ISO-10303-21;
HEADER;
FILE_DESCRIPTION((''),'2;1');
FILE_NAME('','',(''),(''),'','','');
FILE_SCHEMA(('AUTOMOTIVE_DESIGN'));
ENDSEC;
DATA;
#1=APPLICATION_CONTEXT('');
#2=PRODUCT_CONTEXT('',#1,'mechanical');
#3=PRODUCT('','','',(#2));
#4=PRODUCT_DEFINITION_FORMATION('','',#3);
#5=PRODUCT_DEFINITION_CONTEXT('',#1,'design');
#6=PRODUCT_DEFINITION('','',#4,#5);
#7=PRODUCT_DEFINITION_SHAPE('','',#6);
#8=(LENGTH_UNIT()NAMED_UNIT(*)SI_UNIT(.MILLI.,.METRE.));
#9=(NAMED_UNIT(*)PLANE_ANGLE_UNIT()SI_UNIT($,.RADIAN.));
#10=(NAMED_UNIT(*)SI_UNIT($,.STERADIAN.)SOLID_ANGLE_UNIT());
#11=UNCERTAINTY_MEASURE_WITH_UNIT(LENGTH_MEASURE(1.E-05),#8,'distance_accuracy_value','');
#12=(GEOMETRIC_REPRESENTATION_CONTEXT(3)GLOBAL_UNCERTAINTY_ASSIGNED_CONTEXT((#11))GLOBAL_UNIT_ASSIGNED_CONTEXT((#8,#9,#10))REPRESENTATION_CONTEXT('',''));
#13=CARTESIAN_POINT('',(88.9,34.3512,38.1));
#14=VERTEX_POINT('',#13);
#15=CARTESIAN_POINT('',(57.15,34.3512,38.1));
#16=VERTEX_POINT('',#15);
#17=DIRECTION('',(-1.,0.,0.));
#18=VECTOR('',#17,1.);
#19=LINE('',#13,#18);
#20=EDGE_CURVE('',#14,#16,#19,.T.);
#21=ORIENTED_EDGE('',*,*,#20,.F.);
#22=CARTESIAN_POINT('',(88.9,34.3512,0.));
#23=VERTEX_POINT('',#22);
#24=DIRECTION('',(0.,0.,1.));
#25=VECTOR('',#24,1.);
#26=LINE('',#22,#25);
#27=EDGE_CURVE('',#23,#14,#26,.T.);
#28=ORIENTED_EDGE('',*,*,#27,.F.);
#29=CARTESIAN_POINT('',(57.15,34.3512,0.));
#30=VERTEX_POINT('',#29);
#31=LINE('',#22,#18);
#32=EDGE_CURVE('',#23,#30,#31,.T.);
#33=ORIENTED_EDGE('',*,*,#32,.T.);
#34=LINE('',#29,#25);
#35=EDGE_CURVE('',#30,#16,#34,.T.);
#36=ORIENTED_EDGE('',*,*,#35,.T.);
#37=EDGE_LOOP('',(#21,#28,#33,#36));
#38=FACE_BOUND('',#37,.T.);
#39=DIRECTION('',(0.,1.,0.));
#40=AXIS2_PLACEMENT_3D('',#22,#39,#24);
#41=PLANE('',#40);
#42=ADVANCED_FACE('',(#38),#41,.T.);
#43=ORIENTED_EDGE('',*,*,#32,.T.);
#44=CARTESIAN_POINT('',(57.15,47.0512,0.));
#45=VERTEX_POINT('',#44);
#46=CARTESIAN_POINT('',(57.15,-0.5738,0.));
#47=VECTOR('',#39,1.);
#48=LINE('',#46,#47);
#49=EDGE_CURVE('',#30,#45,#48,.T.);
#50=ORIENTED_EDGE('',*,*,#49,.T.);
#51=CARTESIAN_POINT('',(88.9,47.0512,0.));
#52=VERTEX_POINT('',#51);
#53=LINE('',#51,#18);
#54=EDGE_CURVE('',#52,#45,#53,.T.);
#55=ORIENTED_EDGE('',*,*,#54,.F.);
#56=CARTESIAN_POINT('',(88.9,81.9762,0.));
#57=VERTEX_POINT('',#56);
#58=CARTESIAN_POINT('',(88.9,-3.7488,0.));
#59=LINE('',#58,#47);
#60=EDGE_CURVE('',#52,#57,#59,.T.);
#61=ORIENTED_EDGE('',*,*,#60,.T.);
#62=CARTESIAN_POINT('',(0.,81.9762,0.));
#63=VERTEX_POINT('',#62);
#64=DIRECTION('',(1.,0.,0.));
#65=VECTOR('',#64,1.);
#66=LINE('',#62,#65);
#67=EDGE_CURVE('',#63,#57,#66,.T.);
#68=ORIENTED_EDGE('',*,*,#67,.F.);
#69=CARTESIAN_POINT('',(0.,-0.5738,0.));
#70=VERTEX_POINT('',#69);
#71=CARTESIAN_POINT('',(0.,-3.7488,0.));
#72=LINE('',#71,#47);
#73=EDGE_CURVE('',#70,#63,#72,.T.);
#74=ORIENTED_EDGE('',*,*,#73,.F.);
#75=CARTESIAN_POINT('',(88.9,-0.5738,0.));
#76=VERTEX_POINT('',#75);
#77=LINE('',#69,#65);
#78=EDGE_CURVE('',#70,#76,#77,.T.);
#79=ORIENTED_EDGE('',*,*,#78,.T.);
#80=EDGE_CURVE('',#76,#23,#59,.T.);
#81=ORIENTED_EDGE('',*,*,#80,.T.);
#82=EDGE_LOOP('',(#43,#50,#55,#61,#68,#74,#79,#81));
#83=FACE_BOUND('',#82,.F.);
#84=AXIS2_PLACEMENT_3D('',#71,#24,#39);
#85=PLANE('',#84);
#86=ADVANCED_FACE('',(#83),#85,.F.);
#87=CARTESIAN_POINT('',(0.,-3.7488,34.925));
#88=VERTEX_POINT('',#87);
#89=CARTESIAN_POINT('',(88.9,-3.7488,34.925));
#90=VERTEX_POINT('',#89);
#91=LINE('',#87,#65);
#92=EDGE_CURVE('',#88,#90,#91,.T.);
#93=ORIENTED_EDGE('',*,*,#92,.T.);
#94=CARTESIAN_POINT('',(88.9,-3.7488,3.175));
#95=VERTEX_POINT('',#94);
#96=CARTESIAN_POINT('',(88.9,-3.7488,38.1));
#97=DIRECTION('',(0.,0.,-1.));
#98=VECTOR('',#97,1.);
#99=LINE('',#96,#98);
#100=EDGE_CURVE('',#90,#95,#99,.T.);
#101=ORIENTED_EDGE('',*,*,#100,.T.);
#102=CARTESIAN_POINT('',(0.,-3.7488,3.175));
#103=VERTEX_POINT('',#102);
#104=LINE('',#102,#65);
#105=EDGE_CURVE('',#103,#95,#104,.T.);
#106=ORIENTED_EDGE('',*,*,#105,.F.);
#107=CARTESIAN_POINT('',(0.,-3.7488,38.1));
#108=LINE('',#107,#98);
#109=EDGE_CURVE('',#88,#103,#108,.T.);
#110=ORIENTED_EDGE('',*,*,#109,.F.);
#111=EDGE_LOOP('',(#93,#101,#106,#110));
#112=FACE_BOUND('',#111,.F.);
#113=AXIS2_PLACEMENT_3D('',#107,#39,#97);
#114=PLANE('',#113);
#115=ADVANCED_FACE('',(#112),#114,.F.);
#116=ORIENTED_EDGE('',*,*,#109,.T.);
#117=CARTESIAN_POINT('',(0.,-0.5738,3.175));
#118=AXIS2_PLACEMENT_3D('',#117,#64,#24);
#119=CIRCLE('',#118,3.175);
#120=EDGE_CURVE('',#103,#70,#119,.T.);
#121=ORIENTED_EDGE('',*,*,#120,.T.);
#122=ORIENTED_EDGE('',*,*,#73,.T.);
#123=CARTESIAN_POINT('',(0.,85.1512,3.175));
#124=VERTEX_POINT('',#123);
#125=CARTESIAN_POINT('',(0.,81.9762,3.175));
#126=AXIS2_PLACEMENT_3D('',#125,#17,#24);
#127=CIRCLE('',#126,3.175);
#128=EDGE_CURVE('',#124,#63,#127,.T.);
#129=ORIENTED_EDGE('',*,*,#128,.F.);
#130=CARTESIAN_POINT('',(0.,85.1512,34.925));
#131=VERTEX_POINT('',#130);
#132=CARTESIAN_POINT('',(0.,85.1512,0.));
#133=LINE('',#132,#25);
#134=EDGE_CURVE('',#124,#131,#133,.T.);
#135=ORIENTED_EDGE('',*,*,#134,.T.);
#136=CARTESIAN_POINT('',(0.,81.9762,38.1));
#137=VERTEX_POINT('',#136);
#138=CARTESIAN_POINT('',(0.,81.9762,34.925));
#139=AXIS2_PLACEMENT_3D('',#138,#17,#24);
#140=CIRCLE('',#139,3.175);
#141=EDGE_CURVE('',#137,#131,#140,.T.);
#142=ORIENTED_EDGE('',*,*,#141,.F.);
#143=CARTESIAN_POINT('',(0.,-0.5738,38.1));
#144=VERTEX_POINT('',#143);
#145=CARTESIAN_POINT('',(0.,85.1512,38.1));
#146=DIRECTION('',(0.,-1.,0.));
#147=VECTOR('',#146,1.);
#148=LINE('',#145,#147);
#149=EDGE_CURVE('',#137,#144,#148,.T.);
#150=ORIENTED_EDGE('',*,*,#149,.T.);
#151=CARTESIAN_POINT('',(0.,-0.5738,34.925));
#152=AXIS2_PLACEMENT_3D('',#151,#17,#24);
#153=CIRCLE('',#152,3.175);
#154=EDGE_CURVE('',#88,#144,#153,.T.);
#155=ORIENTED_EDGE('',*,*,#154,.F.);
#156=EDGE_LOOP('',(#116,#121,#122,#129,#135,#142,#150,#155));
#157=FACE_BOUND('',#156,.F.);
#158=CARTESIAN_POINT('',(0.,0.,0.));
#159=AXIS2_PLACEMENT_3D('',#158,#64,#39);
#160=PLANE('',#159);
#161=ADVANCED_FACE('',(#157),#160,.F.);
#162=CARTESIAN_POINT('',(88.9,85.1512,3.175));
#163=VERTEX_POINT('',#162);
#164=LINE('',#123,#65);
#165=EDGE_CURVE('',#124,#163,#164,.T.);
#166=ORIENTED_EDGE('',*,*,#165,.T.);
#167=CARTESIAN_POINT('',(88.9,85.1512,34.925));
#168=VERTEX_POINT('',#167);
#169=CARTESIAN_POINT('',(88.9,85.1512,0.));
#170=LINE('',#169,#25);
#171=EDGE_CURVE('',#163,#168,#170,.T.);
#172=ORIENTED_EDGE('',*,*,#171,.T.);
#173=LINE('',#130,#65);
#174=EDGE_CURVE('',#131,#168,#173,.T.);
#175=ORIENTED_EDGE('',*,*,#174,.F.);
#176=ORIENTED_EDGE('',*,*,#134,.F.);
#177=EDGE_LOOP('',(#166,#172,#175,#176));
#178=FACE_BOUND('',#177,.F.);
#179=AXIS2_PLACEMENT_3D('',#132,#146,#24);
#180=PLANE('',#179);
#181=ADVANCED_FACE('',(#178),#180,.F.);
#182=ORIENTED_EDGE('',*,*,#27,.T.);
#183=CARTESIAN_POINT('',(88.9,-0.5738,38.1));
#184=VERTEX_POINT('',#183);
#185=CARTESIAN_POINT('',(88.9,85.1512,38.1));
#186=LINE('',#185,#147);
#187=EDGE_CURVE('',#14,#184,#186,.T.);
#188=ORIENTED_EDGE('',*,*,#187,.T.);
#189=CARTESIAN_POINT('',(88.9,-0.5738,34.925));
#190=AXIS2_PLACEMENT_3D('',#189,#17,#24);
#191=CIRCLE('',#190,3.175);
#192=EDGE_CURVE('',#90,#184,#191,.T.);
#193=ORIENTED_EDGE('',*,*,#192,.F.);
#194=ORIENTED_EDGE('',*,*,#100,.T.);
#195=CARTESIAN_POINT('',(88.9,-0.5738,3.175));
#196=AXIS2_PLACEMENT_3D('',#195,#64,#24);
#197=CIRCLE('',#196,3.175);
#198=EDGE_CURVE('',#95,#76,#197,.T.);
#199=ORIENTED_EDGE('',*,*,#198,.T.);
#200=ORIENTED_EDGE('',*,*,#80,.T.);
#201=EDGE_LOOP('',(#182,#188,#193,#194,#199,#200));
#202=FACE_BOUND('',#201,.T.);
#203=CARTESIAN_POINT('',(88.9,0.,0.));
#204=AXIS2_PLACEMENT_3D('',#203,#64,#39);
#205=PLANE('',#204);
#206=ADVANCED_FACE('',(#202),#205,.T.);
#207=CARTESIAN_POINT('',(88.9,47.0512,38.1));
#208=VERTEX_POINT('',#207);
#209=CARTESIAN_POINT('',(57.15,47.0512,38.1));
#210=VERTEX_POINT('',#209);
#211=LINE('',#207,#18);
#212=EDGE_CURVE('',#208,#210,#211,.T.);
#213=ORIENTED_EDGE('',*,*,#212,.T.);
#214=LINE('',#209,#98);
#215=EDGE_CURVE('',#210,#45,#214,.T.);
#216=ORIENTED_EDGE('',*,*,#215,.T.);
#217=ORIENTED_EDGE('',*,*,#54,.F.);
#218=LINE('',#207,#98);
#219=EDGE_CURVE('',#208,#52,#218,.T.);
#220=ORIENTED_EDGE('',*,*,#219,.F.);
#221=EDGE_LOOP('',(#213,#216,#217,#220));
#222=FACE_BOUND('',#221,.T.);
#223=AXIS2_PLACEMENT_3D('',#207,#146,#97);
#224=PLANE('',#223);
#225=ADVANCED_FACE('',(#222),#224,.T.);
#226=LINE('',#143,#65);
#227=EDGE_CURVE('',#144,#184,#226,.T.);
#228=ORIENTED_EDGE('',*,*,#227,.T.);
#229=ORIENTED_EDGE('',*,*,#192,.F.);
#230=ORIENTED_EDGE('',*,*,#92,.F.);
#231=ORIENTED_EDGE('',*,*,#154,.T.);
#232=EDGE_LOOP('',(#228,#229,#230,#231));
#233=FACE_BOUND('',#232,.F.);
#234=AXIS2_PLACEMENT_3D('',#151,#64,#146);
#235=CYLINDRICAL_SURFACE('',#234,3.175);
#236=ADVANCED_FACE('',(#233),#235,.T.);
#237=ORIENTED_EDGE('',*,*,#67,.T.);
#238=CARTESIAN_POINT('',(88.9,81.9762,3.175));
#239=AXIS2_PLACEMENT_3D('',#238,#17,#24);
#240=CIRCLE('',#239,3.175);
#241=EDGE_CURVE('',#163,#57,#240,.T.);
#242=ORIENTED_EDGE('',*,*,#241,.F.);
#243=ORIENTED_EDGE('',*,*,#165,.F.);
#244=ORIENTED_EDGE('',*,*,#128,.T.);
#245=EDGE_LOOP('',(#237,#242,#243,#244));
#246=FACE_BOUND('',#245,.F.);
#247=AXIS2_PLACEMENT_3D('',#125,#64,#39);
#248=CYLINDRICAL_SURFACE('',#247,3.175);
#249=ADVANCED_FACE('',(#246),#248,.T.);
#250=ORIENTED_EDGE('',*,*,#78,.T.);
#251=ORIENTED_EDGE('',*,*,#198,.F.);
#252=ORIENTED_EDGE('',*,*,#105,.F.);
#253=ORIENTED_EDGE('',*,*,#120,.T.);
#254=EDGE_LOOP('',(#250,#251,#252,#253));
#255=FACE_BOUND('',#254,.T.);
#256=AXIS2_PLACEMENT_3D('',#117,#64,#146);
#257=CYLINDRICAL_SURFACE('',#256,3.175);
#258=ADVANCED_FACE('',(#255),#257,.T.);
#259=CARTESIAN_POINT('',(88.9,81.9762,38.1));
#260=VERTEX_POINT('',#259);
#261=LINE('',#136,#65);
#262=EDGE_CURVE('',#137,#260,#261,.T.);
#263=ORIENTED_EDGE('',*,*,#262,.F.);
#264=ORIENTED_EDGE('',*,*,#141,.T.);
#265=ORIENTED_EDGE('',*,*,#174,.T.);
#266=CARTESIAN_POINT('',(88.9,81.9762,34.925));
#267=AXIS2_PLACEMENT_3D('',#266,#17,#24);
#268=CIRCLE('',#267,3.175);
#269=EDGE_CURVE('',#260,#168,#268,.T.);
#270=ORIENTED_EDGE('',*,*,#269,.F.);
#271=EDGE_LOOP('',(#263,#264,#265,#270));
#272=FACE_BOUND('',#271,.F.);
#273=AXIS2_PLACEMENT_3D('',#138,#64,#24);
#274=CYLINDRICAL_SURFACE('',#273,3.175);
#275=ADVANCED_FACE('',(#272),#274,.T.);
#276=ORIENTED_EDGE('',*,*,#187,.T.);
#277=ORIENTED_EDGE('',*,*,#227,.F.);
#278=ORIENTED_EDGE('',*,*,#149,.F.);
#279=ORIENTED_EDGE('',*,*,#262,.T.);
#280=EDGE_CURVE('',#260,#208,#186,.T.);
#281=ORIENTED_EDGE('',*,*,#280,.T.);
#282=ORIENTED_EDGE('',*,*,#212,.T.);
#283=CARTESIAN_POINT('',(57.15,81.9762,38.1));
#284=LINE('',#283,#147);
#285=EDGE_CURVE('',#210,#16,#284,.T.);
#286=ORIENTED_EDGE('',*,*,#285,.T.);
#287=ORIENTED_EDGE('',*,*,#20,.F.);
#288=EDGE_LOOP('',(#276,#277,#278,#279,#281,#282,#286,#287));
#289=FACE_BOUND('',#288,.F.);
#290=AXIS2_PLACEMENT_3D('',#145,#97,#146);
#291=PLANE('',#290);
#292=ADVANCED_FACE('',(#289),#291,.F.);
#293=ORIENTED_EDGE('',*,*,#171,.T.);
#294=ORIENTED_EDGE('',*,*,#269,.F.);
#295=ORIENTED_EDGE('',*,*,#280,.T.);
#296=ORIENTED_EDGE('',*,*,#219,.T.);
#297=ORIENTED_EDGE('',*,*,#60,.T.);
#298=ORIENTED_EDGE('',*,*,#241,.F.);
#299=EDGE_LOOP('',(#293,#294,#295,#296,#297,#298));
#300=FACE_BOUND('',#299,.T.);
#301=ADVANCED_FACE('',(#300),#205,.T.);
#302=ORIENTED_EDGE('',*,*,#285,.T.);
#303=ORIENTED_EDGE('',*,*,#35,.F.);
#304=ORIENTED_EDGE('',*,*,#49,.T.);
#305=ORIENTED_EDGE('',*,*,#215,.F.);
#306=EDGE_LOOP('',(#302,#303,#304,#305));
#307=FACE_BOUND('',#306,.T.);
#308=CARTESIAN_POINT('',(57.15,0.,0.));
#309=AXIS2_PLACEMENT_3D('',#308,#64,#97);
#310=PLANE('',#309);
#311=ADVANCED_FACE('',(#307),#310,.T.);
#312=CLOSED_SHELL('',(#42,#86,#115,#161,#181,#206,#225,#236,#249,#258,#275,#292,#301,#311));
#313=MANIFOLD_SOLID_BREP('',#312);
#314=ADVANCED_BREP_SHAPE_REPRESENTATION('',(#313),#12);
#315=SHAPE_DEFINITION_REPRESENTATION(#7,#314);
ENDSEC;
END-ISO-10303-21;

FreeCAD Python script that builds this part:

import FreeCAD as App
import Part
import Sketcher
Q = App.Units.Quantity


def edges_at(feature, points):
    """Names of the edges that pass closest to the given points."""
    edges = feature.Shape.Edges
    near = lambda p: min(range(len(edges)), key=lambda i: edges[i].distToShape(Part.Vertex(*p))[0])
    return sorted({f"Edge{near(p) + 1}" for p in points})

doc = App.newDocument("Part")
body = doc.addObject("PartDesign::Body", "Body")

sketch1 = doc.addObject("Sketcher::SketchObject", "Sketch")
body.addObject(sketch1)
sketch1.AttachmentSupport = (doc.YZ_Plane, [""])
sketch1.MapMode = "FlatFace"
sketch1.addGeometry(Part.LineSegment(App.Vector(-3.7488, 38.1, 0), App.Vector(-3.7488, 0, 0)), False)
sketch1.addGeometry(Part.LineSegment(App.Vector(-3.7488, 0, 0), App.Vector(85.1512, 0, 0)), False)
sketch1.addGeometry(Part.LineSegment(App.Vector(85.1512, 0, 0), App.Vector(85.1512, 38.1, 0)), False)
sketch1.addGeometry(Part.LineSegment(App.Vector(85.1512, 38.1, 0), App.Vector(-3.7488, 38.1, 0)), False)
sketch1.addConstraint(Sketcher.Constraint("Coincident", 0, 2, 1, 1))
sketch1.addConstraint(Sketcher.Constraint("Coincident", 1, 2, 2, 1))
sketch1.addConstraint(Sketcher.Constraint("Coincident", 2, 2, 3, 1))
sketch1.addConstraint(Sketcher.Constraint("Coincident", 3, 2, 0, 1))
sketch1.addConstraint(Sketcher.Constraint("Vertical", 0))
sketch1.addConstraint(Sketcher.Constraint("Horizontal", 1))
sketch1.addConstraint(Sketcher.Constraint("Vertical", 2))
sketch1.addConstraint(Sketcher.Constraint("Horizontal", 3))
sketch1.addConstraint(Sketcher.Constraint("PointOnObject", 0, 2, -1))
sketch1.addConstraint(Sketcher.Constraint("DistanceX", 1, 1, 1, 2, Q("3.5 in")))
sketch1.addConstraint(Sketcher.Constraint("DistanceY", 0, 2, 0, 1, Q("1.5 in")))
sketch1.addConstraint(Sketcher.Constraint("DistanceX", 0, 2, -1, 1, Q("0.1476 in")))
pad1 = doc.addObject("PartDesign::Pad", "Pad")
body.addObject(pad1)
pad1.Profile = sketch1
pad1.Length = Q("3.5 in")
doc.recompute()

fillet = doc.addObject("PartDesign::Fillet", "Fillet")
body.addObject(fillet)
fillet.Base = (pad1, edges_at(pad1, [
    (44.45, 85.151, 38.1),
    (44.45, 85.151, 0),
    (44.45, -3.749, 0),
    (44.45, -3.749, 38.1),
]))
fillet.Radius = Q("0.125 in")

sketch2 = doc.addObject("Sketcher::SketchObject", "Sketch001")
body.addObject(sketch2)
sketch2.AttachmentSupport = (doc.YZ_Plane, [""])
sketch2.MapMode = "FlatFace"
sketch2.AttachmentOffset = App.Placement(App.Vector(0, 0, 3.5 * 25.4), App.Rotation())
sketch2.addGeometry(Part.LineSegment(App.Vector(34.3512, 38.1, 0), App.Vector(34.3512, 0, 0)), False)
sketch2.addGeometry(Part.LineSegment(App.Vector(34.3512, 0, 0), App.Vector(47.0512, 0, 0)), False)
sketch2.addGeometry(Part.LineSegment(App.Vector(47.0512, 0, 0), App.Vector(47.0512, 38.1, 0)), False)
sketch2.addGeometry(Part.LineSegment(App.Vector(47.0512, 38.1, 0), App.Vector(34.3512, 38.1, 0)), False)
sketch2.addConstraint(Sketcher.Constraint("Coincident", 0, 2, 1, 1))
sketch2.addConstraint(Sketcher.Constraint("Coincident", 1, 2, 2, 1))
sketch2.addConstraint(Sketcher.Constraint("Coincident", 2, 2, 3, 1))
sketch2.addConstraint(Sketcher.Constraint("Coincident", 3, 2, 0, 1))
sketch2.addConstraint(Sketcher.Constraint("Vertical", 0))
sketch2.addConstraint(Sketcher.Constraint("Horizontal", 1))
sketch2.addConstraint(Sketcher.Constraint("Vertical", 2))
sketch2.addConstraint(Sketcher.Constraint("Horizontal", 3))
sketch2.addConstraint(Sketcher.Constraint("PointOnObject", 0, 2, -1))
sketch2.addConstraint(Sketcher.Constraint("DistanceY", 0, 2, 0, 1, Q("1.5 in")))
sketch2.addConstraint(Sketcher.Constraint("DistanceX", 1, 1, 1, 2, Q("0.5 in")))
sketch2.addConstraint(Sketcher.Constraint("DistanceX", -1, 1, 0, 2, Q("1.3524 in")))
pocket1 = doc.addObject("PartDesign::Pocket", "Pocket")
body.addObject(pocket1)
pocket1.Profile = sketch2
pocket1.Length = Q("1.25 in")

doc.recompute()
